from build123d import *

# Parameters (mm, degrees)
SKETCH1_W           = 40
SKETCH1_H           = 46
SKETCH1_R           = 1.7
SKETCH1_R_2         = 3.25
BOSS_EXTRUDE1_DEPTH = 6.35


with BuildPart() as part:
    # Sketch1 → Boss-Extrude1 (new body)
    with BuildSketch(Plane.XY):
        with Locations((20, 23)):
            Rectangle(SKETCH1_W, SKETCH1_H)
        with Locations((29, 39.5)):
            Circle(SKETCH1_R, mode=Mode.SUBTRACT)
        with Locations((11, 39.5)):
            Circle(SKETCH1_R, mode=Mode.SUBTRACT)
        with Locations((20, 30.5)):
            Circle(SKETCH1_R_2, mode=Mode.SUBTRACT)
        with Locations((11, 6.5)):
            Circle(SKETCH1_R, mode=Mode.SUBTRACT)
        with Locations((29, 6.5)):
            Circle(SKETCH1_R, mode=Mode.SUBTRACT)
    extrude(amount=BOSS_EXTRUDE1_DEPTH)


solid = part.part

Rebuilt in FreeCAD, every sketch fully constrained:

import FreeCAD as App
import Part
import Sketcher
Q = App.Units.Quantity


def add_polygon(sketch, points):
    """Adds a closed chain of lines whose ends are joined by coincident constraints."""
    first, n = sketch.GeometryCount, len(points)
    for a, b in zip(points, points[1:] + points[:1]):
        sketch.addGeometry(Part.LineSegment(App.Vector(*a, 0), App.Vector(*b, 0)), False)
    for i in range(n):
        sketch.addConstraint(Sketcher.Constraint("Coincident", first + i, 2, first + (i + 1) % n, 1))

doc = App.newDocument("Part")
params = doc.addObject("Spreadsheet::Sheet", "Params")
for row, (alias, value) in enumerate([
    ("sketch1_diameter", "3.4 mm"),
    ("sketch1_diameter2", "6.5 mm"),
    ("sketch1_width", "40 mm"),
    ("sketch1_height", "46 mm"),
    ("pad1_length", "6.35 mm"),
], start=1):
    params.set(f"A{row}", alias)
    params.set(f"B{row}", "=" + value)
    params.setAlias(f"B{row}", alias)

body = doc.addObject("PartDesign::Body", "Body")

# Sketch on XY plane
sketch1 = body.newObject("Sketcher::SketchObject", "Sketch")
sketch1.AttachmentSupport = (doc.getObject("XY_Plane"), [""])
sketch1.MapMode = "FlatFace"
add_polygon(sketch1, [(0, 46), (0, 0), (40, 0), (40, 46)])  # lines 0-3
sketch1.addGeometry(Part.Circle(App.Vector(11, 6.5, 0), App.Vector(0, 0, 1), 1.7), False)  # 4
sketch1.addGeometry(Part.Circle(App.Vector(29, 6.5, 0), App.Vector(0, 0, 1), 1.7), False)  # 5
sketch1.addGeometry(Part.Circle(App.Vector(11, 39.5, 0), App.Vector(0, 0, 1), 1.7), False)  # 6
sketch1.addGeometry(Part.Circle(App.Vector(20, 30.5, 0), App.Vector(0, 0, 1), 3.2), False)  # 7
sketch1.addGeometry(Part.Circle(App.Vector(29, 39.5, 0), App.Vector(0, 0, 1), 1.7), False)  # 8
sketch1.addConstraint([
    Sketcher.Constraint("Vertical", 0),
    Sketcher.Constraint("Horizontal", 1),
    Sketcher.Constraint("Vertical", 2),
    Sketcher.Constraint("Horizontal", 3),
    Sketcher.Constraint("Coincident", 0, 2, -1, 1),
    Sketcher.Constraint("Equal", 4, 5),
    Sketcher.Constraint("Equal", 5, 6),
    Sketcher.Constraint("Equal", 6, 8),
    Sketcher.Constraint("Horizontal", 4, 3, 5, 3),
    Sketcher.Constraint("Horizontal", 6, 3, 8, 3),
    Sketcher.Constraint("Vertical", 4, 3, 6, 3),
    Sketcher.Constraint("Vertical", 5, 3, 8, 3),
    Sketcher.Constraint("Diameter", 4, Q("3.4 mm")),
    Sketcher.Constraint("Diameter", 7, Q("6.5 mm")),
    Sketcher.Constraint("DistanceX", 1, 1, 1, 2, Q("40 mm")),
    Sketcher.Constraint("DistanceY", 0, 2, 0, 1, Q("46 mm")),
    Sketcher.Constraint("DistanceX", -1, 1, 4, 3, Q("11 mm")),
    Sketcher.Constraint("DistanceX", -1, 1, 5, 3, Q("29 mm")),
    Sketcher.Constraint("DistanceX", -1, 1, 7, 3, Q("20 mm")),
    Sketcher.Constraint("DistanceY", 4, 3, 6, 3, Q("33 mm")),
    Sketcher.Constraint("DistanceY", 7, 3, 6, 3, Q("9 mm")),
    Sketcher.Constraint("DistanceY", -1, 1, 4, 3, Q("6.5 mm")),
])
sketch1.setExpression("Constraints[16]", "Params.sketch1_diameter")
sketch1.setExpression("Constraints[17]", "Params.sketch1_diameter2")
sketch1.setExpression("Constraints[18]", "Params.sketch1_width")
sketch1.setExpression("Constraints[19]", "Params.sketch1_height")
pad1 = body.newObject("PartDesign::Pad", "Pad")
pad1.Profile = sketch1
pad1.setExpression("Length", "Params.pad1_length")

doc.recompute()
